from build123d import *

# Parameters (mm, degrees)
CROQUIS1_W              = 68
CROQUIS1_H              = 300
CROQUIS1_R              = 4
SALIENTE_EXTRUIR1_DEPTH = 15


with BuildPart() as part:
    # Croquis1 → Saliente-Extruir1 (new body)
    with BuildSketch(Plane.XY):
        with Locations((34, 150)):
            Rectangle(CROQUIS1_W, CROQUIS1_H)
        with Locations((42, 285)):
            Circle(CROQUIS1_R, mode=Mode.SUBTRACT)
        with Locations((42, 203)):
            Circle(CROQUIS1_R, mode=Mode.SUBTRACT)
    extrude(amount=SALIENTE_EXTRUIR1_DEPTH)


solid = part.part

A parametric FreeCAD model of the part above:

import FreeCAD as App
import Part
import Sketcher
from FreeCAD import Vector
Q = App.Units.Quantity

doc = App.newDocument("Part")
params = doc.addObject("Spreadsheet::Sheet", "Params")
for row, (alias, value) in enumerate([
    ("sketch1_diameter", "8 mm"),
    ("sketch1_width", "68 mm"),
    ("sketch1_height", "300 mm"),
    ("pad1_length", "15 mm"),
], start=1):
    params.set(f"A{row}", alias)
    params.set(f"B{row}", "=" + value)
    params.setAlias(f"B{row}", alias)

body = doc.addObject("PartDesign::Body", "Body")

sketch1 = body.newObject("Sketcher::SketchObject", "Sketch")
sketch1.AttachmentSupport = (doc.getObject("XY_Plane"), [""])
sketch1.MapMode = "FlatFace"
sketch1.addGeometry(Part.LineSegment(Vector(0, 300, 0), Vector(0, 0, 0)), False)
sketch1.addGeometry(Part.LineSegment(Vector(0, 0, 0), Vector(68, 0, 0)), False)
sketch1.addGeometry(Part.LineSegment(Vector(68, 0, 0), Vector(68, 300, 0)), False)
sketch1.addGeometry(Part.LineSegment(Vector(68, 300, 0), Vector(0, 300, 0)), False)
sketch1.addGeometry(Part.Circle(Vector(42, 203, 0), Vector(0, 0, 1), 4), False)
sketch1.addGeometry(Part.Circle(Vector(42, 285, 0), Vector(0, 0, 1), 4), False)
sketch1.addConstraint(Sketcher.Constraint("Coincident", 0, 2, 1, 1))
sketch1.addConstraint(Sketcher.Constraint("Coincident", 1, 2, 2, 1))
sketch1.addConstraint(Sketcher.Constraint("Coincident", 2, 2, 3, 1))
sketch1.addConstraint(Sketcher.Constraint("Coincident", 3, 2, 0, 1))
sketch1.addConstraint(Sketcher.Constraint("Vertical", 0))
sketch1.addConstraint(Sketcher.Constraint("Horizontal", 1))
sketch1.addConstraint(Sketcher.Constraint("Vertical", 2))
sketch1.addConstraint(Sketcher.Constraint("Horizontal", 3))
sketch1.addConstraint(Sketcher.Constraint("Coincident", 0, 2, -1, 1))
sketch1.addConstraint(Sketcher.Constraint("Equal", 4, 5))
sketch1.addConstraint(Sketcher.Constraint("Vertical", 4, 3, 5, 3))
sketch1.addConstraint(Sketcher.Constraint("Diameter", 4, Q("8 mm")))
sketch1.addConstraint(Sketcher.Constraint("DistanceX", 1, 1, 1, 2, Q("68 mm")))
sketch1.addConstraint(Sketcher.Constraint("DistanceY", 0, 2, 0, 1, Q("300 mm")))
sketch1.addConstraint(Sketcher.Constraint("DistanceX", -1, 1, 4, 3, Q("42 mm")))
sketch1.addConstraint(Sketcher.Constraint("DistanceY", -1, 1, 4, 3, Q("203 mm")))
sketch1.addConstraint(Sketcher.Constraint("DistanceY", -1, 1, 5, 3, Q("285 mm")))
sketch1.setExpression("Constraints[11]", "Params.sketch1_diameter")
sketch1.setExpression("Constraints[12]", "Params.sketch1_width")
sketch1.setExpression("Constraints[13]", "Params.sketch1_height")
pad1 = body.newObject("PartDesign::Pad", "Pad")
pad1.Profile = sketch1
pad1.setExpression("Length", "Params.pad1_length")

doc.recompute()
